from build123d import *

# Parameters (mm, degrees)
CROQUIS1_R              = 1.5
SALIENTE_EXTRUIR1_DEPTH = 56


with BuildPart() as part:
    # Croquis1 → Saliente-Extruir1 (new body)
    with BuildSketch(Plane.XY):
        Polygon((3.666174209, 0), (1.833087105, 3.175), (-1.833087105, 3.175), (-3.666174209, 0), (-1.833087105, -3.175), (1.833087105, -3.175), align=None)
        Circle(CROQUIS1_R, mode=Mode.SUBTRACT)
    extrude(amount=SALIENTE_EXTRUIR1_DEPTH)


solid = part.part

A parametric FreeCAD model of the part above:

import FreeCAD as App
import Part
import Sketcher
from FreeCAD import Vector
Q = App.Units.Quantity


def add_polygon(sketch, points):
    """Adds a closed chain of lines whose ends are joined by coincident constraints."""
    first, n = sketch.GeometryCount, len(points)
    for a, b in zip(points, points[1:] + points[:1]):
        sketch.addGeometry(Part.LineSegment(App.Vector(*a, 0), App.Vector(*b, 0)), False)
    for i in range(n):
        sketch.addConstraint(Sketcher.Constraint("Coincident", first + i, 2, first + (i + 1) % n, 1))

doc = App.newDocument("Part")
body = doc.addObject("PartDesign::Body", "Body")

sketch1 = doc.addObject("Sketcher::SketchObject", "Sketch")
body.addObject(sketch1)
sketch1.AttachmentSupport = (doc.XY_Plane, [""])
sketch1.MapMode = "FlatFace"
add_polygon(sketch1, [(3.666174, 0), (1.833087, 3.175), (-1.833087, 3.175), (-3.666174, 0), (-1.833087, -3.175), (1.833087, -3.175)])
sketch1.addGeometry(Part.Circle(Vector(0, 0, 0), Vector(0, 0, 1), 1.5), False)
sketch1.addConstraint([
    Sketcher.Constraint("Horizontal", 1),
    Sketcher.Constraint("Horizontal", 4),
    Sketcher.Constraint("Coincident", 6, 3, -1, 1),
    Sketcher.Constraint("Symmetric", 0, 2, 3, 2, -1, 1),
    Sketcher.Constraint("Symmetric", 2, 2, 5, 2, -1, 1),
    Sketcher.Constraint("PointOnObject", 2, 2, -1),
    Sketcher.Constraint("Parallel", 2, 5),
    Sketcher.Constraint("Vertical", 1, 2, 3, 2),
    Sketcher.Constraint("Diameter", 6, 3.0),
    Sketcher.Constraint("Angle", 0, Q("120 deg")),
    Sketcher.Constraint("DistanceY", 3, 2, 1, 2, 6.35),
    Sketcher.Constraint("DistanceX", 1, 2, 1, 1, 3.666174),
])
pad1 = doc.addObject("PartDesign::Pad", "Pad")
body.addObject(pad1)
pad1.Profile = sketch1
pad1.Length = 56

doc.recompute()
